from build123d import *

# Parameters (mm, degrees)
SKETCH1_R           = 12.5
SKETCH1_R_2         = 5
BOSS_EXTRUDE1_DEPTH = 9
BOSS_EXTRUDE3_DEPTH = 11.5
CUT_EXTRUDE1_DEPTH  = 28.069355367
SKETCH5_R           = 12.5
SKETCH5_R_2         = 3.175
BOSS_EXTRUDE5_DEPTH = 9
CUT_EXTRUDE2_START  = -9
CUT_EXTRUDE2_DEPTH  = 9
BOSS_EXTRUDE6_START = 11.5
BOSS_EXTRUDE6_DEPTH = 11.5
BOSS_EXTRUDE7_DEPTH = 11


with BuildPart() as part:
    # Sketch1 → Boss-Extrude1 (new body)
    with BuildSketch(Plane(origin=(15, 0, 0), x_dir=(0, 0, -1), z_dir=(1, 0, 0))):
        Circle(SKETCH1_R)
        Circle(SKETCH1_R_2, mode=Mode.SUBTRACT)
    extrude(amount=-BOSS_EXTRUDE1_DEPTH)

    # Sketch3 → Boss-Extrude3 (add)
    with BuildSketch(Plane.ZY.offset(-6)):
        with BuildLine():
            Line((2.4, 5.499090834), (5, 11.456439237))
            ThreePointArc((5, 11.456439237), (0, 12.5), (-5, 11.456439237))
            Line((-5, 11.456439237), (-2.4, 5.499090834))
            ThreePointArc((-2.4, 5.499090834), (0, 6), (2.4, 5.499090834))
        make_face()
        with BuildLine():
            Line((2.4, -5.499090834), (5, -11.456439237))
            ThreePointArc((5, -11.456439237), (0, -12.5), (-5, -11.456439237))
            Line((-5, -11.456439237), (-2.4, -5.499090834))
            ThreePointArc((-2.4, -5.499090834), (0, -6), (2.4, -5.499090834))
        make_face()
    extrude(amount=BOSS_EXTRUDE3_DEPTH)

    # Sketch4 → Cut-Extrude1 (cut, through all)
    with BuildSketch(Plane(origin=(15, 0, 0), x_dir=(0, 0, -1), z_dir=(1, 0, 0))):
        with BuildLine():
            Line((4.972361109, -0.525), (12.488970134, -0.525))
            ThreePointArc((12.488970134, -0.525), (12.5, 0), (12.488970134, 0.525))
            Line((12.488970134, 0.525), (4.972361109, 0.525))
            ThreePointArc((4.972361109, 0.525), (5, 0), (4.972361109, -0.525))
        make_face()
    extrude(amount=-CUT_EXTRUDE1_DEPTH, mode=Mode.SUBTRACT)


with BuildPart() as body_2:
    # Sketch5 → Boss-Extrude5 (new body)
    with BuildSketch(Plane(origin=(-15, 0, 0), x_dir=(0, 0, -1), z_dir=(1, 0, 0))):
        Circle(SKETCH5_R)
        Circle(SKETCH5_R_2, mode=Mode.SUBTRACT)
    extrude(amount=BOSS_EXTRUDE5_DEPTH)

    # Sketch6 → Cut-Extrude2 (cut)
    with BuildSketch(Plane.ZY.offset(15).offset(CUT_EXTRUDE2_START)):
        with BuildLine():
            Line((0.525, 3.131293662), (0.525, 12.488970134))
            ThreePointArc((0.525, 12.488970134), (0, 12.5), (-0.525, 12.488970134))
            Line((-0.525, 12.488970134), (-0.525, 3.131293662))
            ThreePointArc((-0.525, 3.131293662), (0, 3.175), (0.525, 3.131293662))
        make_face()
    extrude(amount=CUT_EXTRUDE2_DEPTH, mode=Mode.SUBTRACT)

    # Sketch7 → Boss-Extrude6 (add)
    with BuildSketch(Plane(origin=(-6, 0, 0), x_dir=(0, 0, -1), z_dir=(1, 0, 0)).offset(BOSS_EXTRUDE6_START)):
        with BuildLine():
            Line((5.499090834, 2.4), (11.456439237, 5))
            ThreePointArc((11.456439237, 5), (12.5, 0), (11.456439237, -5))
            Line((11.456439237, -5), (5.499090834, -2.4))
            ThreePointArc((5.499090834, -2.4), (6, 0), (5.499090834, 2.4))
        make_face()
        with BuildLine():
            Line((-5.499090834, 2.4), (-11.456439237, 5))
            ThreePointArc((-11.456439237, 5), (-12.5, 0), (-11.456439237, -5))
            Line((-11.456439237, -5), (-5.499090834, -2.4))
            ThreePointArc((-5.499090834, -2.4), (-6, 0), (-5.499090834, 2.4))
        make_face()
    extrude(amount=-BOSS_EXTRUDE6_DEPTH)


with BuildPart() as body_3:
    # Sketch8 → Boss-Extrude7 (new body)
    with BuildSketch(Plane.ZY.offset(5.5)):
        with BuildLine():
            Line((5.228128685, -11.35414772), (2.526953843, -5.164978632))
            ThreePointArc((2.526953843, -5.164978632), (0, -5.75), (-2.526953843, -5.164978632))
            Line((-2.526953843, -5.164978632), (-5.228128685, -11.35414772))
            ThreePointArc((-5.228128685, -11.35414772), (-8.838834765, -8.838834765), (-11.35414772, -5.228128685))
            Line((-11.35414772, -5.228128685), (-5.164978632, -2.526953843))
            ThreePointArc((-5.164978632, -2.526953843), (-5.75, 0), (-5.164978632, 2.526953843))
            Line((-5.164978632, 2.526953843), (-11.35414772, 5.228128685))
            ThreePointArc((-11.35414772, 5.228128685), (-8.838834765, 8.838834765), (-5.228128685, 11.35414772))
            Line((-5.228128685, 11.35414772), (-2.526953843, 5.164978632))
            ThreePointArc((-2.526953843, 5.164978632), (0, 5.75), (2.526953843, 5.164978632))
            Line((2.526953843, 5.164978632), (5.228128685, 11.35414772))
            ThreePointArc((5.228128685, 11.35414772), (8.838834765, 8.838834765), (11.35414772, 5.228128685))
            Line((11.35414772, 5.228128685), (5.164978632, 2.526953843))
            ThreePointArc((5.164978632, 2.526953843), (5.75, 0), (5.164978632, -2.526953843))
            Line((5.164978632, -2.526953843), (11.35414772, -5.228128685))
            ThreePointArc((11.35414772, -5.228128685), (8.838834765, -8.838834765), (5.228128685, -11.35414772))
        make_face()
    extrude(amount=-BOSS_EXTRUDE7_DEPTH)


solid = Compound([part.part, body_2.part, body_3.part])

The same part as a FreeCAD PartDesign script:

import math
import FreeCAD as App
import Part
import Sketcher
Q = App.Units.Quantity

doc = App.newDocument("Part")
body = doc.addObject("PartDesign::Body", "Body")

# Sketch on YZ plane
sketch1 = body.newObject("Sketcher::SketchObject", "Sketch")
sketch1.AttachmentSupport = (doc.getObject("YZ_Plane"), [""])
sketch1.MapMode = "FlatFace"
sketch1.AttachmentOffset = App.Placement(App.Vector(0, 0, 15), App.Rotation())
sketch1.addGeometry([
    Part.Circle(App.Vector(0, 0, 0), App.Vector(0, 0, 1), 12),
    Part.Circle(App.Vector(0, 0, 0), App.Vector(0, 0, 1), 5),
], False)
sketch1.addConstraint([
    Sketcher.Constraint("Coincident", 0, 3, -1, 1),
    Sketcher.Constraint("Coincident", 1, 3, -1, 1),
    Sketcher.Constraint("Diameter", 0, Q("25 mm")),
    Sketcher.Constraint("Diameter", 1, Q("10 mm")),
])
pad1 = body.newObject("PartDesign::Pad", "Pad")
pad1.Profile = sketch1
pad1.Length = 9
pad1.Reversed = True

# Sketch on YZ plane
sketch2 = body.newObject("Sketcher::SketchObject", "Sketch001")
sketch2.AttachmentSupport = (doc.getObject("YZ_Plane"), [""])
sketch2.MapMode = "FlatFace"
sketch2.AttachmentOffset = App.Placement(App.Vector(0, 0, 6), App.Rotation())
sketch2.addGeometry([
    Part.LineSegment(App.Vector(5.5, 2.4, 0), App.Vector(11.5, 5, 0)),  # 0
    Part.ArcOfCircle(Part.Circle(App.Vector(0, 0, 0), App.Vector(0, 0, 1), 12.5), math.radians(-24), math.radians(24)),  # 1
    Part.LineSegment(App.Vector(11.5, -5, 0), App.Vector(5.5, -2.4, 0)),  # 2
    Part.ArcOfCircle(Part.Circle(App.Vector(0, 0, 0), App.Vector(0, 0, 1), 6), math.radians(-24), math.radians(24)),  # 3
    Part.LineSegment(App.Vector(-11.5, 5, 0), App.Vector(-5.5, 2.4, 0)),  # 4
    Part.ArcOfCircle(Part.Circle(App.Vector(0, 0, 0), App.Vector(0, 0, 1), 6), math.radians(156), math.radians(204)),  # 5
    Part.LineSegment(App.Vector(-5.5, -2.4, 0), App.Vector(-11.5, -5, 0)),  # 6
    Part.ArcOfCircle(Part.Circle(App.Vector(0, 0, 0), App.Vector(0, 0, 1), 12.5), math.radians(156), math.radians(204)),  # 7
], False)
sketch2.addConstraint([
    Sketcher.Constraint("Coincident", 0, 2, 1, 2),
    Sketcher.Constraint("Coincident", 1, 1, 2, 1),
    Sketcher.Constraint("Coincident", 2, 2, 3, 1),
    Sketcher.Constraint("Coincident", 3, 2, 0, 1),
    Sketcher.Constraint("Coincident", 4, 2, 5, 1),
    Sketcher.Constraint("Coincident", 5, 2, 6, 1),
    Sketcher.Constraint("Coincident", 6, 2, 7, 2),
    Sketcher.Constraint("Coincident", 7, 1, 4, 1),
    Sketcher.Constraint("Coincident", 1, 3, -1, 1),
    Sketcher.Constraint("Coincident", 3, 3, -1, 1),
    Sketcher.Constraint("Coincident", 5, 3, -1, 1),
    Sketcher.Constraint("Coincident", 7, 3, -1, 1),
    Sketcher.Constraint("Equal", 3, 5),
    Sketcher.Constraint("Equal", 1, 7),
    Sketcher.Constraint("Parallel", 2, 4),
    Sketcher.Constraint("Parallel", 0, 6),
    Sketcher.Constraint("Horizontal", 3, 2, 4, 2),
    Sketcher.Constraint("Horizontal", 2, 2, 5, 2),
    Sketcher.Constraint("Horizontal", 1, 1, 6, 2),
    Sketcher.Constraint("Vertical", 0, 2, 1, 1),
    Sketcher.Constraint("Radius", 3, Q("6 mm")),
    Sketcher.Constraint("Radius", 1, Q("12.5 mm")),
    Sketcher.Constraint("DistanceY", -1, 1, 0, 2, Q("5 mm")),
    Sketcher.Constraint("DistanceY", 2, 2, -1, 1, Q("2.4 mm")),
])
pad2 = body.newObject("PartDesign::Pad", "Pad001")
pad2.Profile = sketch2
pad2.Length = 11.5
pad2.Reversed = True

# Sketch on YZ plane
sketch3 = body.newObject("Sketcher::SketchObject", "Sketch002")
sketch3.AttachmentSupport = (doc.getObject("YZ_Plane"), [""])
sketch3.MapMode = "FlatFace"
sketch3.AttachmentOffset = App.Placement(App.Vector(0, 0, 15), App.Rotation())
sketch3.addGeometry([
    Part.LineSegment(App.Vector(-0.5, -5, 0), App.Vector(-0.5, -12.5, 0)),
    Part.ArcOfCircle(Part.Circle(App.Vector(0, 0, 0), App.Vector(0, 0, 1), 12.5), math.radians(-92.41), math.radians(-87.59)),
    Part.LineSegment(App.Vector(0.5, -12.5, 0), App.Vector(0.5, -5, 0)),
    Part.ArcOfCircle(Part.Circle(App.Vector(0, 0, 0), App.Vector(0, 0, 1), 5), math.radians(-96.03), math.radians(-83.97)),
], False)
sketch3.addConstraint([
    Sketcher.Constraint("Coincident", 0, 2, 1, 1),
    Sketcher.Constraint("Coincident", 1, 2, 2, 1),
    Sketcher.Constraint("Coincident", 2, 2, 3, 2),
    Sketcher.Constraint("Coincident", 3, 1, 0, 1),
    Sketcher.Constraint("Vertical", 0),
    Sketcher.Constraint("Vertical", 2),
    Sketcher.Constraint("Coincident", 1, 3, -1, 1),
    Sketcher.Constraint("Coincident", 3, 3, -1, 1),
    Sketcher.Constraint("Horizontal", 0, 2, 1, 2),
    Sketcher.Constraint("Radius", 3, Q("5 mm")),
    Sketcher.Constraint("Radius", 1, Q("12.5 mm")),
    Sketcher.Constraint("DistanceX", 0, 2, 1, 2, Q("1.05 mm")),
])
pocket1 = body.newObject("PartDesign::Pocket", "Pocket")
pocket1.Profile = sketch3
pocket1.Type = "ThroughAll"
body2 = doc.addObject("PartDesign::Body", "Body001")

# Sketch on YZ plane
sketch4 = body2.newObject("Sketcher::SketchObject", "Sketch003")
sketch4.AttachmentSupport = (doc.getObject("YZ_Plane001"), [""])
sketch4.MapMode = "FlatFace"
sketch4.AttachmentOffset = App.Placement(App.Vector(0, 0, -15), App.Rotation())
sketch4.addGeometry([
    Part.Circle(App.Vector(0, 0, 0), App.Vector(0, 0, 1), 12.5),
    Part.Circle(App.Vector(0, 0, 0), App.Vector(0, 0, 1), 3.2),
], False)
sketch4.addConstraint([
    Sketcher.Constraint("Coincident", 0, 3, -1, 1),
    Sketcher.Constraint("Coincident", 1, 3, -1, 1),
    Sketcher.Constraint("Diameter", 0, Q("25 mm")),
    Sketcher.Constraint("Diameter", 1, Q("6.35 mm")),
])
pad3 = body2.newObject("PartDesign::Pad", "Pad002")
pad3.Profile = sketch4
pad3.Length = 9

# Sketch on YZ plane
sketch5 = body2.newObject("Sketcher::SketchObject", "Sketch004")
sketch5.AttachmentSupport = (doc.getObject("YZ_Plane001"), [""])
sketch5.MapMode = "FlatFace"
sketch5.AttachmentOffset = App.Placement(App.Vector(0, 0, -6), App.Rotation())
sketch5.addGeometry([
    Part.LineSegment(App.Vector(3.1, 0.5, 0), App.Vector(12.5, 0.5, 0)),
    Part.ArcOfCircle(Part.Circle(App.Vector(0, 0, 0), App.Vector(0, 0, 1), 12.5), math.radians(-2.41), math.radians(2.41)),
    Part.LineSegment(App.Vector(12.5, -0.5, 0), App.Vector(3.1, -0.5, 0)),
    Part.ArcOfCircle(Part.Circle(App.Vector(0, 0, 0), App.Vector(0, 0, 1), 3.2), math.radians(-9.52), math.radians(9.52)),
], False)
sketch5.addConstraint([
    Sketcher.Constraint("Coincident", 0, 2, 1, 2),
    Sketcher.Constraint("Coincident", 1, 1, 2, 1),
    Sketcher.Constraint("Coincident", 2, 2, 3, 1),
    Sketcher.Constraint("Coincident", 3, 2, 0, 1),
    Sketcher.Constraint("Horizontal", 0),
    Sketcher.Constraint("Horizontal", 2),
    Sketcher.Constraint("Coincident", 1, 3, -1, 1),
    Sketcher.Constraint("Coincident", 3, 3, -1, 1),
    Sketcher.Constraint("Vertical", 0, 2, 1, 1),
    Sketcher.Constraint("Radius", 1, Q("12.5 mm")),
    Sketcher.Constraint("Radius", 3, Q("3.175 mm")),
    Sketcher.Constraint("DistanceY", 1, 1, 0, 2, Q("1.05 mm")),
])
pocket2 = body2.newObject("PartDesign::Pocket", "Pocket001")
pocket2.Profile = sketch5
pocket2.Length = 9

# Sketch on YZ plane
sketch6 = body2.newObject("Sketcher::SketchObject", "Sketch005")
sketch6.AttachmentSupport = (doc.getObject("YZ_Plane001"), [""])
sketch6.MapMode = "FlatFace"
sketch6.AttachmentOffset = App.Placement(App.Vector(0, 0, 5.5), App.Rotation())
sketch6.addGeometry([
    Part.LineSegment(App.Vector(5, -11.5, 0), App.Vector(2.4, -5.5, 0)),  # 0
    Part.ArcOfCircle(Part.Circle(App.Vector(0, 0, 0), App.Vector(0, 0, 1), 6), math.radians(-114), math.radians(-66)),  # 1
    Part.LineSegment(App.Vector(-2.4, -5.5, 0), App.Vector(-5, -11.5, 0)),  # 2
    Part.ArcOfCircle(Part.Circle(App.Vector(0, 0, 0), App.Vector(0, 0, 1), 12.5), math.radians(-114), math.radians(-66)),  # 3
    Part.LineSegment(App.Vector(2.4, 5.5, 0), App.Vector(5, 11.5, 0)),  # 4
    Part.ArcOfCircle(Part.Circle(App.Vector(0, 0, 0), App.Vector(0, 0, 1), 12.5), math.radians(66), math.radians(114)),  # 5
    Part.LineSegment(App.Vector(-5, 11.5, 0), App.Vector(-2.4, 5.5, 0)),  # 6
    Part.ArcOfCircle(Part.Circle(App.Vector(0, 0, 0), App.Vector(0, 0, 1), 6), math.radians(66), math.radians(114)),  # 7
], False)
sketch6.addConstraint([
    Sketcher.Constraint("Coincident", 0, 2, 1, 2),
    Sketcher.Constraint("Coincident", 1, 1, 2, 1),
    Sketcher.Constraint("Coincident", 2, 2, 3, 1),
    Sketcher.Constraint("Coincident", 3, 2, 0, 1),
    Sketcher.Constraint("Coincident", 4, 2, 5, 1),
    Sketcher.Constraint("Coincident", 5, 2, 6, 1),
    Sketcher.Constraint("Coincident", 6, 2, 7, 2),
    Sketcher.Constraint("Coincident", 7, 1, 4, 1),
    Sketcher.Constraint("Coincident", 1, 3, -1, 1),
    Sketcher.Constraint("Coincident", 3, 3, -1, 1),
    Sketcher.Constraint("Coincident", 5, 3, -1, 1),
    Sketcher.Constraint("Coincident", 7, 3, -1, 1),
    Sketcher.Constraint("Equal", 3, 5),
    Sketcher.Constraint("Equal", 1, 7),
    Sketcher.Constraint("Parallel", 2, 4),
    Sketcher.Constraint("Parallel", 0, 6),
    Sketcher.Constraint("Horizontal", 0, 2, 1, 1),
    Sketcher.Constraint("Horizontal", 2, 2, 3, 2),
    Sketcher.Constraint("Horizontal", 4, 2, 5, 2),
    Sketcher.Constraint("Vertical", 3, 2, 4, 2),
    Sketcher.Constraint("Radius", 1, Q("6 mm")),
    Sketcher.Constraint("Radius", 3, Q("12.5 mm")),
    Sketcher.Constraint("DistanceX", 2, 2, -1, 1, Q("5 mm")),
    Sketcher.Constraint("DistanceX", -1, 1, 0, 2, Q("2.4 mm")),
])
pad4 = body2.newObject("PartDesign::Pad", "Pad003")
pad4.Profile = sketch6
pad4.Length = 11.5
pad4.Reversed = True
body3 = doc.addObject("PartDesign::Body", "Body002")

# Sketch on YZ plane
sketch7 = body3.newObject("Sketcher::SketchObject", "Sketch006")
sketch7.AttachmentSupport = (doc.getObject("YZ_Plane002"), [""])
sketch7.MapMode = "FlatFace"
sketch7.AttachmentOffset = App.Placement(App.Vector(0, 0, -5.5), App.Rotation())
sketch7.addGeometry([
    Part.LineSegment(App.Vector(-5, 3, 0), App.Vector(-11, 5, 0)),  # 0
    Part.ArcOfCircle(Part.Circle(App.Vector(0, 0, 0), App.Vector(0, 0, 1), 12), math.radians(115), math.radians(155)),  # 1
    Part.LineSegment(App.Vector(-5, 11, 0), App.Vector(-3, 5, 0)),  # 2
    Part.ArcOfCircle(Part.Circle(App.Vector(0, 0, 0), App.Vector(0, 0, 1), 6), math.radians(64), math.radians(116)),  # 3
    Part.LineSegment(App.Vector(3, 5, 0), App.Vector(5, 11, 0)),  # 4
    Part.ArcOfCircle(Part.Circle(App.Vector(0, 0, 0), App.Vector(0, 0, 1), 12), math.radians(25), math.radians(65)),  # 5
    Part.LineSegment(App.Vector(11, 5, 0), App.Vector(5, 3, 0)),  # 6
    Part.ArcOfCircle(Part.Circle(App.Vector(0, 0, 0), App.Vector(0, 0, 1), 6), math.radians(-26), math.radians(26)),  # 7
    Part.LineSegment(App.Vector(5, -3, 0), App.Vector(11, -5, 0)),  # 8
    Part.ArcOfCircle(Part.Circle(App.Vector(0, 0, 0), App.Vector(0, 0, 1), 12), math.radians(-65), math.radians(-25)),  # 9
    Part.LineSegment(App.Vector(5, -11, 0), App.Vector(3, -5, 0)),  # 10
    Part.ArcOfCircle(Part.Circle(App.Vector(0, 0, 0), App.Vector(0, 0, 1), 6), math.radians(-116), math.radians(-64)),  # 11
    Part.LineSegment(App.Vector(-3, -5, 0), App.Vector(-5, -11, 0)),  # 12
    Part.ArcOfCircle(Part.Circle(App.Vector(0, 0, 0), App.Vector(0, 0, 1), 12), math.radians(-155), math.radians(-115)),  # 13
    Part.LineSegment(App.Vector(-11, -5, 0), App.Vector(-5, -3, 0)),  # 14
    Part.ArcOfCircle(Part.Circle(App.Vector(0, 0, 0), App.Vector(0, 0, 1), 6), math.radians(154), math.radians(206)),  # 15
], False)
sketch7.addConstraint([
    Sketcher.Constraint("Coincident", 0, 2, 1, 2),
    Sketcher.Constraint("Coincident", 1, 1, 2, 1),
    Sketcher.Constraint("Coincident", 2, 2, 3, 2),
    Sketcher.Constraint("Coincident", 3, 1, 4, 1),
    Sketcher.Constraint("Coincident", 4, 2, 5, 2),
    Sketcher.Constraint("Coincident", 5, 1, 6, 1),
    Sketcher.Constraint("Coincident", 6, 2, 7, 2),
    Sketcher.Constraint("Coincident", 7, 1, 8, 1),
    Sketcher.Constraint("Coincident", 8, 2, 9, 2),
    Sketcher.Constraint("Coincident", 9, 1, 10, 1),
    Sketcher.Constraint("Coincident", 10, 2, 11, 2),
    Sketcher.Constraint("Coincident", 11, 1, 12, 1),
    Sketcher.Constraint("Coincident", 12, 2, 13, 2),
    Sketcher.Constraint("Coincident", 13, 1, 14, 1),
    Sketcher.Constraint("Coincident", 14, 2, 15, 2),
    Sketcher.Constraint("Coincident", 15, 1, 0, 1),
    Sketcher.Constraint("Coincident", 1, 3, -1, 1),
    Sketcher.Constraint("Coincident", 3, 3, -1, 1),
    Sketcher.Constraint("Coincident", 5, 3, -1, 1),
    Sketcher.Constraint("Coincident", 7, 3, -1, 1),
    Sketcher.Constraint("Coincident", 9, 3, -1, 1),
    Sketcher.Constraint("Coincident", 11, 3, -1, 1),
    Sketcher.Constraint("Coincident", 13, 3, -1, 1),
    Sketcher.Constraint("Coincident", 15, 3, -1, 1),
    Sketcher.Constraint("Equal", 1, 5),
    Sketcher.Constraint("Equal", 3, 7),
    Sketcher.Constraint("Equal", 5, 9),
    Sketcher.Constraint("Equal", 7, 11),
    Sketcher.Constraint("Equal", 9, 13),
    Sketcher.Constraint("Equal", 11, 15),
    Sketcher.Constraint("Perpendicular", 0, 4),
    Sketcher.Constraint("Perpendicular", 2, 6),
    Sketcher.Constraint("Perpendicular", 4, 8),
    Sketcher.Constraint("Perpendicular", 6, 10),
    Sketcher.Constraint("Perpendicular", 8, 12),
    Sketcher.Constraint("Perpendicular", 10, 14),
    Sketcher.Constraint("Horizontal", 2, 2, 3, 1),
    Sketcher.Constraint("Horizontal", 1, 1, 4, 2),
    Sketcher.Constraint("Horizontal", 0, 2, 5, 1),
    Sketcher.Constraint("Horizontal", 10, 2, 11, 1),
    Sketcher.Constraint("Horizontal", 8, 2, 13, 1),
    Sketcher.Constraint("Vertical", 6, 2, 7, 1),
    Sketcher.Constraint("Vertical", 4, 2, 9, 1),
    Sketcher.Constraint("Equal", 0, 2),
    Sketcher.Constraint("Radius", 1, Q("12.5 mm")),
    Sketcher.Constraint("Radius", 3, Q("5.75 mm")),
    Sketcher.Constraint("DistanceY", -1, 1, 0, 2, Q("5.228129 mm")),
    Sketcher.Constraint("DistanceY", -1, 1, 2, 2, Q("5.164979 mm")),
])
pad5 = body3.newObject("PartDesign::Pad", "Pad004")
pad5.Profile = sketch7
pad5.Length = 11

doc.recompute()
